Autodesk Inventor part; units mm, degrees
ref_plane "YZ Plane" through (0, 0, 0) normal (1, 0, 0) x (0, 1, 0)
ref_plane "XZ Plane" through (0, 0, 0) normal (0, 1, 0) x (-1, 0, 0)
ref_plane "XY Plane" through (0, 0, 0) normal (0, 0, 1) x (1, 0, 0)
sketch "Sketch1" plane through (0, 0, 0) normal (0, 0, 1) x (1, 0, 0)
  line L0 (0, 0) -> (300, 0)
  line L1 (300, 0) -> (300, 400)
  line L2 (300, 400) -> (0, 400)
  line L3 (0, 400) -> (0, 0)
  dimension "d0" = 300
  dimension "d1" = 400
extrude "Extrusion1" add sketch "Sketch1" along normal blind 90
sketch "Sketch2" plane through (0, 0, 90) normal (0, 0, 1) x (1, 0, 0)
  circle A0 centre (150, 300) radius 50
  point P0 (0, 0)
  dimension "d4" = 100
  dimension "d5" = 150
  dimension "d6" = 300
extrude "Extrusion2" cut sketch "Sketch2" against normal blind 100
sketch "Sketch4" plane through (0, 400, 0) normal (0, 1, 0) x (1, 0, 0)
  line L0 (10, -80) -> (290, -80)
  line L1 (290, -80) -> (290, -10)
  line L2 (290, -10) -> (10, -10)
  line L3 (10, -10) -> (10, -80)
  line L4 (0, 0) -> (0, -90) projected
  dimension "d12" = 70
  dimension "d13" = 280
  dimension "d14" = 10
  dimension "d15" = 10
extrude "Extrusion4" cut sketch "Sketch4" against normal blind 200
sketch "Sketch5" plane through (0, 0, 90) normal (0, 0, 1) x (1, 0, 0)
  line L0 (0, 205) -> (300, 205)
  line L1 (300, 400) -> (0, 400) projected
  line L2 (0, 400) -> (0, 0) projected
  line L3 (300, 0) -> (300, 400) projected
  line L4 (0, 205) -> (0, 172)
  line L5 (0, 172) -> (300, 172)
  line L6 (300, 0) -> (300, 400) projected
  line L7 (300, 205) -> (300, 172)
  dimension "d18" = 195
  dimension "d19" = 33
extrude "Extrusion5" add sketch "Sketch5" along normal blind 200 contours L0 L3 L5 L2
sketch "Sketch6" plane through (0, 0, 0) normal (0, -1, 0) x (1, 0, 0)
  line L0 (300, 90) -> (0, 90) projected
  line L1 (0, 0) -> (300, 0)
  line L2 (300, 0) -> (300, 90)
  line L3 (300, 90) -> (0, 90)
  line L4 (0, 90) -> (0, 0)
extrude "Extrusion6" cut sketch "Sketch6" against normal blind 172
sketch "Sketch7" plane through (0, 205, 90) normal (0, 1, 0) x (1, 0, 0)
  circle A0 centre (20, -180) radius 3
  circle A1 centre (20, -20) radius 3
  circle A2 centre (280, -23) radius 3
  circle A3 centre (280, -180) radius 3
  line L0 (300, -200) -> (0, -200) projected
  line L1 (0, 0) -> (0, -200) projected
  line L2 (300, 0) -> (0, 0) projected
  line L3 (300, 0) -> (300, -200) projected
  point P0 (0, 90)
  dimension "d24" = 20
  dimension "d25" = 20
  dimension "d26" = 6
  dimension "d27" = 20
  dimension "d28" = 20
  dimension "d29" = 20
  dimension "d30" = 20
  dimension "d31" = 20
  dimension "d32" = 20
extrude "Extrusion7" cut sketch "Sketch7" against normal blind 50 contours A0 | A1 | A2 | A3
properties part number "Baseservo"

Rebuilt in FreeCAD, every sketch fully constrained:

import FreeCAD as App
import Part
import Sketcher
from FreeCAD import Vector
Q = App.Units.Quantity


def add_polygon(sketch, points):
    """Adds a closed chain of lines whose ends are joined by coincident constraints."""
    first, n = sketch.GeometryCount, len(points)
    for a, b in zip(points, points[1:] + points[:1]):
        sketch.addGeometry(Part.LineSegment(App.Vector(*a, 0), App.Vector(*b, 0)), False)
    for i in range(n):
        sketch.addConstraint(Sketcher.Constraint("Coincident", first + i, 2, first + (i + 1) % n, 1))

doc = App.newDocument("Part")
params = doc.addObject("Spreadsheet::Sheet", "Params")
for row, (alias, value) in enumerate([
    ("sketch1_width", "300 mm"),
    ("sketch1_height", "400 mm"),
    ("pad1_length", "90 mm"),
    ("sketch2_diameter", "100 mm"),
    ("pocket1_length", "100 mm"),
    ("sketch3_width", "280 mm"),
    ("sketch3_height", "70 mm"),
    ("pocket2_length", "200 mm"),
    ("sketch4_height", "33 mm"),
    ("sketch4_width", "300 mm"),
    ("pad2_length", "200 mm"),
    ("sketch5_width", "300 mm"),
    ("sketch5_height", "90 mm"),
    ("pocket3_length", "172 mm"),
    ("sketch6_diameter", "6 mm"),
    ("pocket4_length", "50 mm"),
], start=1):
    params.set(f"A{row}", alias)
    params.set(f"B{row}", "=" + value)
    params.setAlias(f"B{row}", alias)

body = doc.addObject("PartDesign::Body", "Body")

# Sketch on XY plane
sketch1 = body.newObject("Sketcher::SketchObject", "Sketch")
sketch1.AttachmentSupport = (doc.getObject("XY_Plane"), [""])
sketch1.MapMode = "FlatFace"
add_polygon(sketch1, [(0, 400), (0, 0), (300, 0), (300, 400)])  # lines 0-3
sketch1.addConstraint([
    Sketcher.Constraint("Vertical", 0),
    Sketcher.Constraint("Horizontal", 1),
    Sketcher.Constraint("Vertical", 2),
    Sketcher.Constraint("Horizontal", 3),
    Sketcher.Constraint("Coincident", 0, 2, -1, 1),
    Sketcher.Constraint("DistanceX", 1, 1, 1, 2, Q("300 mm")),
    Sketcher.Constraint("DistanceY", 0, 2, 0, 1, Q("400 mm")),
])
sketch1.setExpression("Constraints[9]", "Params.sketch1_width")
sketch1.setExpression("Constraints[10]", "Params.sketch1_height")
pad1 = body.newObject("PartDesign::Pad", "Pad")
pad1.Profile = sketch1
pad1.setExpression("Length", "Params.pad1_length")

# Sketch on XY plane
sketch2 = body.newObject("Sketcher::SketchObject", "Sketch001")
sketch2.AttachmentSupport = (doc.getObject("XY_Plane"), [""])
sketch2.MapMode = "FlatFace"
sketch2.AttachmentOffset = App.Placement(Vector(0, 0, 90), App.Rotation())
sketch2.addGeometry(Part.Circle(Vector(150, 300, 0), Vector(0, 0, 1), 50), False)
sketch2.addConstraint([
    Sketcher.Constraint("Diameter", 0, Q("100 mm")),
    Sketcher.Constraint("DistanceX", -1, 1, 0, 3, Q("150 mm")),
    Sketcher.Constraint("DistanceY", -1, 1, 0, 3, Q("300 mm")),
])
sketch2.setExpression("Constraints[0]", "Params.sketch2_diameter")
pocket1 = body.newObject("PartDesign::Pocket", "Pocket")
pocket1.Profile = sketch2
pocket1.setExpression("Length", "Params.pocket1_length")

# Sketch on XZ plane
sketch3 = body.newObject("Sketcher::SketchObject", "Sketch002")
sketch3.AttachmentSupport = (doc.getObject("XZ_Plane"), [""])
sketch3.MapMode = "FlatFace"
sketch3.AttachmentOffset = App.Placement(Vector(0, 0, -400), App.Rotation())
add_polygon(sketch3, [(10, 10), (10, 80), (290, 80), (290, 10)])  # lines 0-3
sketch3.addConstraint([
    Sketcher.Constraint("Vertical", 0),
    Sketcher.Constraint("Horizontal", 1),
    Sketcher.Constraint("Vertical", 2),
    Sketcher.Constraint("Horizontal", 3),
    Sketcher.Constraint("DistanceX", 1, 1, 1, 2, Q("280 mm")),
    Sketcher.Constraint("DistanceY", 0, 1, 0, 2, Q("70 mm")),
    Sketcher.Constraint("DistanceX", -1, 1, 0, 2, Q("10 mm")),
    Sketcher.Constraint("DistanceY", -1, 1, 2, 2, Q("10 mm")),
])
sketch3.setExpression("Constraints[8]", "Params.sketch3_width")
sketch3.setExpression("Constraints[9]", "Params.sketch3_height")
pocket2 = body.newObject("PartDesign::Pocket", "Pocket001")
pocket2.Profile = sketch3
pocket2.setExpression("Length", "Params.pocket2_length")
pocket2.Reversed = True

# Sketch on XY plane
sketch4 = body.newObject("Sketcher::SketchObject", "Sketch003")
sketch4.AttachmentSupport = (doc.getObject("XY_Plane"), [""])
sketch4.MapMode = "FlatFace"
sketch4.AttachmentOffset = App.Placement(Vector(0, 0, 90), App.Rotation())
add_polygon(sketch4, [(300, 205), (0, 205), (0, 172), (300, 172)])  # lines 0-3
sketch4.addConstraint([
    Sketcher.Constraint("Horizontal", 0),
    Sketcher.Constraint("Vertical", 1),
    Sketcher.Constraint("Horizontal", 2),
    Sketcher.Constraint("Vertical", 3),
    Sketcher.Constraint("PointOnObject", 0, 2, -2),
    Sketcher.Constraint("DistanceY", 1, 2, 1, 1, Q("33 mm")),
    Sketcher.Constraint("DistanceX", 0, 2, 0, 1, Q("300 mm")),
    Sketcher.Constraint("DistanceY", -1, 1, 0, 2, Q("205 mm")),
])
sketch4.setExpression("Constraints[9]", "Params.sketch4_height")
sketch4.setExpression("Constraints[10]", "Params.sketch4_width")
pad2 = body.newObject("PartDesign::Pad", "Pad001")
pad2.Profile = sketch4
pad2.setExpression("Length", "Params.pad2_length")

# Sketch on XZ plane
sketch5 = body.newObject("Sketcher::SketchObject", "Sketch004")
sketch5.AttachmentSupport = (doc.getObject("XZ_Plane"), [""])
sketch5.MapMode = "FlatFace"
add_polygon(sketch5, [(300, 0), (300, 90), (0, 90), (0, 0)])  # lines 0-3
sketch5.addConstraint([
    Sketcher.Constraint("Vertical", 0),
    Sketcher.Constraint("Horizontal", 1),
    Sketcher.Constraint("Vertical", 2),
    Sketcher.Constraint("Horizontal", 3),
    Sketcher.Constraint("Coincident", 2, 2, -1, 1),
    Sketcher.Constraint("DistanceX", 1, 2, 1, 1, Q("300 mm")),
    Sketcher.Constraint("DistanceY", 0, 1, 0, 2, Q("90 mm")),
])
sketch5.setExpression("Constraints[9]", "Params.sketch5_width")
sketch5.setExpression("Constraints[10]", "Params.sketch5_height")
pocket3 = body.newObject("PartDesign::Pocket", "Pocket002")
pocket3.Profile = sketch5
pocket3.setExpression("Length", "Params.pocket3_length")

# Sketch on XZ plane
sketch6 = body.newObject("Sketcher::SketchObject", "Sketch005")
sketch6.AttachmentSupport = (doc.getObject("XZ_Plane"), [""])
sketch6.MapMode = "FlatFace"
sketch6.AttachmentOffset = App.Placement(Vector(0, 0, -205), App.Rotation())
sketch6.addGeometry([
    Part.Circle(Vector(20, 270, 0), Vector(0, 0, 1), 3),
    Part.Circle(Vector(20, 110, 0), Vector(0, 0, 1), 3),
    Part.Circle(Vector(280, 113, 0), Vector(0, 0, 1), 3),
    Part.Circle(Vector(280, 270, 0), Vector(0, 0, 1), 3),
], False)
sketch6.addConstraint([
    Sketcher.Constraint("Equal", 0, 1),
    Sketcher.Constraint("Equal", 1, 2),
    Sketcher.Constraint("Equal", 2, 3),
    Sketcher.Constraint("Horizontal", 0, 3, 3, 3),
    Sketcher.Constraint("Vertical", 0, 3, 1, 3),
    Sketcher.Constraint("Vertical", 2, 3, 3, 3),
    Sketcher.Constraint("Diameter", 0, Q("6 mm")),
    Sketcher.Constraint("DistanceX", -1, 1, 0, 3, Q("20 mm")),
    Sketcher.Constraint("DistanceY", -1, 1, 0, 3, Q("270 mm")),
    Sketcher.Constraint("DistanceY", -1, 1, 1, 3, Q("110 mm")),
    Sketcher.Constraint("DistanceX", -1, 1, 2, 3, Q("280 mm")),
    Sketcher.Constraint("DistanceY", -1, 1, 2, 3, Q("113 mm")),
])
sketch6.setExpression("Constraints[6]", "Params.sketch6_diameter")
pocket4 = body.newObject("PartDesign::Pocket", "Pocket003")
pocket4.Profile = sketch6
pocket4.setExpression("Length", "Params.pocket4_length")
pocket4.Reversed = True

doc.recompute()
